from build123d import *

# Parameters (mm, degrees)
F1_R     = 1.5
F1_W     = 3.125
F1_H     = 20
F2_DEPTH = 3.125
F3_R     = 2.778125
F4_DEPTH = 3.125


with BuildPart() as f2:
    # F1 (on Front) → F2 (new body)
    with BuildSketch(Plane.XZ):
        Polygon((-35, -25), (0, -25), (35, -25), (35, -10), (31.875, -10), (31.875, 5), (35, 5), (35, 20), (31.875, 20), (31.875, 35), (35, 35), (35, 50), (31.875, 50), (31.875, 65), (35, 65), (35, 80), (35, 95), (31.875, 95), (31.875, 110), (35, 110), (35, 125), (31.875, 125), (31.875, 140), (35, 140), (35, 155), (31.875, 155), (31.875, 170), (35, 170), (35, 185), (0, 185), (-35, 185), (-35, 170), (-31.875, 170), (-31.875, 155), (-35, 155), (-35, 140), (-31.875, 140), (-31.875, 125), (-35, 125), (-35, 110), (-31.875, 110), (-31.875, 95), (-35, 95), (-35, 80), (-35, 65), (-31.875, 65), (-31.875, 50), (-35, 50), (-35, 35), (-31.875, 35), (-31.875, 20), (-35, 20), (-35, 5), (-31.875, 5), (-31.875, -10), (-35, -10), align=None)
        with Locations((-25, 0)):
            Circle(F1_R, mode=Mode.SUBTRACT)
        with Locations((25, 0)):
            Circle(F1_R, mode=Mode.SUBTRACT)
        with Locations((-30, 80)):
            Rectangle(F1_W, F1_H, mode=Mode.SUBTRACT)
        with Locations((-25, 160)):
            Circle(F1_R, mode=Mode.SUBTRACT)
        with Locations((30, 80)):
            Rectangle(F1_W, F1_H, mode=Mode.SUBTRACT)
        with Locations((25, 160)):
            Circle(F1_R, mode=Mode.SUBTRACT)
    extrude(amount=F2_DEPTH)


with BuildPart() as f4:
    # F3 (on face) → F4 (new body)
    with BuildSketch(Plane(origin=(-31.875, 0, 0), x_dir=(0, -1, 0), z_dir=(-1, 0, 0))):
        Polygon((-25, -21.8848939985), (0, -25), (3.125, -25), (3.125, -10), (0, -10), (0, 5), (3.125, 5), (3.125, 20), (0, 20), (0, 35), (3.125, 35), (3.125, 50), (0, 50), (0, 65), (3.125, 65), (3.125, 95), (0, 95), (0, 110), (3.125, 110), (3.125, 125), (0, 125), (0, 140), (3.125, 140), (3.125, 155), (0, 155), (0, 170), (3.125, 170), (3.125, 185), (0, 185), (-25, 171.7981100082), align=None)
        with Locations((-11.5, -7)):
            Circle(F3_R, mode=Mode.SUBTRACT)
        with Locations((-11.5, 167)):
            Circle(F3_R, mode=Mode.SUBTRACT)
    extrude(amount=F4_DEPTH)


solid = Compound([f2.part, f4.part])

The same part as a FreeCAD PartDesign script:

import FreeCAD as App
import Part
import Sketcher
from FreeCAD import Vector

doc = App.newDocument("Part")
body = doc.addObject("PartDesign::Body", "Body")

sketch1 = body.newObject("Sketcher::SketchObject", "Sketch")
sketch1.AttachmentSupport = (doc.getObject("XZ_Plane"), [""])
sketch1.MapMode = "FlatFace"
sketch1.addGeometry([
    Part.LineSegment(Vector(-35, -25, 0), Vector(35, -25, 0)),
    Part.LineSegment(Vector(35, -25, 0), Vector(35, -10, 0)),
    Part.LineSegment(Vector(35, -10, 0), Vector(31.9, -10, 0)),
    Part.LineSegment(Vector(31.9, -10, 0), Vector(31.9, 5, 0)),
    Part.LineSegment(Vector(31.9, 5, 0), Vector(35, 5, 0)),
    Part.LineSegment(Vector(35, 5, 0), Vector(35, 20, 0)),
    Part.LineSegment(Vector(35, 20, 0), Vector(31.9, 20, 0)),
    Part.LineSegment(Vector(31.9, 20, 0), Vector(31.9, 35, 0)),
    Part.LineSegment(Vector(31.9, 35, 0), Vector(35, 35, 0)),
    Part.LineSegment(Vector(35, 35, 0), Vector(35, 50, 0)),
    Part.LineSegment(Vector(35, 50, 0), Vector(31.9, 50, 0)),
    Part.LineSegment(Vector(31.9, 50, 0), Vector(31.9, 65, 0)),
    Part.LineSegment(Vector(31.9, 65, 0), Vector(35, 65, 0)),
    Part.LineSegment(Vector(35, 65, 0), Vector(35, 95, 0)),
    Part.LineSegment(Vector(35, 95, 0), Vector(31.9, 95, 0)),
    Part.LineSegment(Vector(31.9, 95, 0), Vector(31.9, 110, 0)),
    Part.LineSegment(Vector(31.9, 110, 0), Vector(35, 110, 0)),
    Part.LineSegment(Vector(35, 110, 0), Vector(35, 125, 0)),
    Part.LineSegment(Vector(35, 125, 0), Vector(31.9, 125, 0)),
    Part.LineSegment(Vector(31.9, 125, 0), Vector(31.9, 140, 0)),
    Part.LineSegment(Vector(31.9, 140, 0), Vector(35, 140, 0)),
    Part.LineSegment(Vector(35, 140, 0), Vector(35, 155, 0)),
    Part.LineSegment(Vector(35, 155, 0), Vector(31.9, 155, 0)),
    Part.LineSegment(Vector(31.9, 155, 0), Vector(31.9, 170, 0)),
    Part.LineSegment(Vector(31.9, 170, 0), Vector(35, 170, 0)),
    Part.LineSegment(Vector(35, 170, 0), Vector(35, 185, 0)),
    Part.LineSegment(Vector(35, 185, 0), Vector(-35, 185, 0)),
    Part.LineSegment(Vector(-35, 185, 0), Vector(-35, 170, 0)),
    Part.LineSegment(Vector(-35, 170, 0), Vector(-31.9, 170, 0)),
    Part.LineSegment(Vector(-31.9, 170, 0), Vector(-31.9, 155, 0)),
    Part.LineSegment(Vector(-31.9, 155, 0), Vector(-35, 155, 0)),
    Part.LineSegment(Vector(-35, 155, 0), Vector(-35, 140, 0)),
    Part.LineSegment(Vector(-35, 140, 0), Vector(-31.9, 140, 0)),
    Part.LineSegment(Vector(-31.9, 140, 0), Vector(-31.9, 125, 0)),
    Part.LineSegment(Vector(-31.9, 125, 0), Vector(-35, 125, 0)),
    Part.LineSegment(Vector(-35, 125, 0), Vector(-35, 110, 0)),
    Part.LineSegment(Vector(-35, 110, 0), Vector(-31.9, 110, 0)),
    Part.LineSegment(Vector(-31.9, 110, 0), Vector(-31.9, 95, 0)),
    Part.LineSegment(Vector(-31.9, 95, 0), Vector(-35, 95, 0)),
    Part.LineSegment(Vector(-35, 95, 0), Vector(-35, 65, 0)),
    Part.LineSegment(Vector(-35, 65, 0), Vector(-31.9, 65, 0)),
    Part.LineSegment(Vector(-31.9, 65, 0), Vector(-31.9, 50, 0)),
    Part.LineSegment(Vector(-31.9, 50, 0), Vector(-35, 50, 0)),
    Part.LineSegment(Vector(-35, 50, 0), Vector(-35, 35, 0)),
    Part.LineSegment(Vector(-35, 35, 0), Vector(-31.9, 35, 0)),
    Part.LineSegment(Vector(-31.9, 35, 0), Vector(-31.9, 20, 0)),
    Part.LineSegment(Vector(-31.9, 20, 0), Vector(-35, 20, 0)),
    Part.LineSegment(Vector(-35, 20, 0), Vector(-35, 5, 0)),
    Part.LineSegment(Vector(-35, 5, 0), Vector(-31.9, 5, 0)),
    Part.LineSegment(Vector(-31.9, 5, 0), Vector(-31.9, -10, 0)),
    Part.LineSegment(Vector(-31.9, -10, 0), Vector(-35, -10, 0)),
    Part.LineSegment(Vector(-35, -10, 0), Vector(-35, -25, 0)),
    Part.Circle(Vector(-25, 0, 0), Vector(0, 0, 1), 1.5),
    Part.Circle(Vector(25, 0, 0), Vector(0, 0, 1), 1.5),
    Part.LineSegment(Vector(-28.4, 70, 0), Vector(-31.6, 70, 0)),
    Part.LineSegment(Vector(-31.6, 70, 0), Vector(-31.6, 90, 0)),
    Part.LineSegment(Vector(-31.6, 90, 0), Vector(-28.4, 90, 0)),
    Part.LineSegment(Vector(-28.4, 90, 0), Vector(-28.4, 70, 0)),
    Part.Circle(Vector(-25, 160, 0), Vector(0, 0, 1), 1.5),
    Part.LineSegment(Vector(31.6, 70, 0), Vector(28.4, 70, 0)),
    Part.LineSegment(Vector(28.4, 70, 0), Vector(28.4, 90, 0)),
    Part.LineSegment(Vector(28.4, 90, 0), Vector(31.6, 90, 0)),
    Part.LineSegment(Vector(31.6, 90, 0), Vector(31.6, 70, 0)),
    Part.Circle(Vector(25, 160, 0), Vector(0, 0, 1), 1.5),
], False)
sketch1.addConstraint([
    Sketcher.Constraint("Coincident", 0, 2, 1, 1),
    Sketcher.Constraint("Coincident", 1, 2, 2, 1),
    Sketcher.Constraint("Coincident", 2, 2, 3, 1),
    Sketcher.Constraint("Coincident", 3, 2, 4, 1),
    Sketcher.Constraint("Coincident", 4, 2, 5, 1),
    Sketcher.Constraint("Coincident", 5, 2, 6, 1),
    Sketcher.Constraint("Coincident", 6, 2, 7, 1),
    Sketcher.Constraint("Coincident", 7, 2, 8, 1),
    Sketcher.Constraint("Coincident", 8, 2, 9, 1),
    Sketcher.Constraint("Coincident", 9, 2, 10, 1),
    Sketcher.Constraint("Coincident", 10, 2, 11, 1),
    Sketcher.Constraint("Coincident", 11, 2, 12, 1),
    Sketcher.Constraint("Coincident", 12, 2, 13, 1),
    Sketcher.Constraint("Coincident", 13, 2, 14, 1),
    Sketcher.Constraint("Coincident", 14, 2, 15, 1),
    Sketcher.Constraint("Coincident", 15, 2, 16, 1),
    Sketcher.Constraint("Coincident", 16, 2, 17, 1),
    Sketcher.Constraint("Coincident", 17, 2, 18, 1),
    Sketcher.Constraint("Coincident", 18, 2, 19, 1),
    Sketcher.Constraint("Coincident", 19, 2, 20, 1),
    Sketcher.Constraint("Coincident", 20, 2, 21, 1),
    Sketcher.Constraint("Coincident", 21, 2, 22, 1),
    Sketcher.Constraint("Coincident", 22, 2, 23, 1),
    Sketcher.Constraint("Coincident", 23, 2, 24, 1),
    Sketcher.Constraint("Coincident", 24, 2, 25, 1),
    Sketcher.Constraint("Coincident", 25, 2, 26, 1),
    Sketcher.Constraint("Coincident", 26, 2, 27, 1),
    Sketcher.Constraint("Coincident", 27, 2, 28, 1),
    Sketcher.Constraint("Coincident", 28, 2, 29, 1),
    Sketcher.Constraint("Coincident", 29, 2, 30, 1),
    Sketcher.Constraint("Coincident", 30, 2, 31, 1),
    Sketcher.Constraint("Coincident", 31, 2, 32, 1),
    Sketcher.Constraint("Coincident", 32, 2, 33, 1),
    Sketcher.Constraint("Coincident", 33, 2, 34, 1),
    Sketcher.Constraint("Coincident", 34, 2, 35, 1),
    Sketcher.Constraint("Coincident", 35, 2, 36, 1),
    Sketcher.Constraint("Coincident", 36, 2, 37, 1),
    Sketcher.Constraint("Coincident", 37, 2, 38, 1),
    Sketcher.Constraint("Coincident", 38, 2, 39, 1),
    Sketcher.Constraint("Coincident", 39, 2, 40, 1),
    Sketcher.Constraint("Coincident", 40, 2, 41, 1),
    Sketcher.Constraint("Coincident", 41, 2, 42, 1),
    Sketcher.Constraint("Coincident", 42, 2, 43, 1),
    Sketcher.Constraint("Coincident", 43, 2, 44, 1),
    Sketcher.Constraint("Coincident", 44, 2, 45, 1),
    Sketcher.Constraint("Coincident", 45, 2, 46, 1),
    Sketcher.Constraint("Coincident", 46, 2, 47, 1),
    Sketcher.Constraint("Coincident", 47, 2, 48, 1),
    Sketcher.Constraint("Coincident", 48, 2, 49, 1),
    Sketcher.Constraint("Coincident", 49, 2, 50, 1),
    Sketcher.Constraint("Coincident", 50, 2, 51, 1),
    Sketcher.Constraint("Coincident", 51, 2, 0, 1),
    Sketcher.Constraint("Coincident", 54, 2, 55, 1),
    Sketcher.Constraint("Coincident", 55, 2, 56, 1),
    Sketcher.Constraint("Coincident", 56, 2, 57, 1),
    Sketcher.Constraint("Coincident", 57, 2, 54, 1),
    Sketcher.Constraint("Coincident", 59, 2, 60, 1),
    Sketcher.Constraint("Coincident", 60, 2, 61, 1),
    Sketcher.Constraint("Coincident", 61, 2, 62, 1),
    Sketcher.Constraint("Coincident", 62, 2, 59, 1),
    Sketcher.Constraint("Horizontal", 0),
    Sketcher.Constraint("Vertical", 1),
    Sketcher.Constraint("Horizontal", 2),
    Sketcher.Constraint("Vertical", 3),
    Sketcher.Constraint("Horizontal", 4),
    Sketcher.Constraint("Vertical", 5),
    Sketcher.Constraint("Horizontal", 6),
    Sketcher.Constraint("Vertical", 7),
    Sketcher.Constraint("Horizontal", 8),
    Sketcher.Constraint("Vertical", 9),
    Sketcher.Constraint("Horizontal", 10),
    Sketcher.Constraint("Vertical", 11),
    Sketcher.Constraint("Horizontal", 12),
    Sketcher.Constraint("Vertical", 13),
    Sketcher.Constraint("Horizontal", 14),
    Sketcher.Constraint("Vertical", 15),
    Sketcher.Constraint("Horizontal", 16),
    Sketcher.Constraint("Vertical", 17),
    Sketcher.Constraint("Horizontal", 18),
    Sketcher.Constraint("Vertical", 19),
    Sketcher.Constraint("Horizontal", 20),
    Sketcher.Constraint("Vertical", 21),
    Sketcher.Constraint("Horizontal", 22),
    Sketcher.Constraint("Vertical", 23),
    Sketcher.Constraint("Horizontal", 24),
    Sketcher.Constraint("Vertical", 25),
    Sketcher.Constraint("Horizontal", 26),
    Sketcher.Constraint("Vertical", 27),
    Sketcher.Constraint("Horizontal", 28),
    Sketcher.Constraint("Vertical", 29),
    Sketcher.Constraint("Horizontal", 30),
    Sketcher.Constraint("Vertical", 31),
    Sketcher.Constraint("Horizontal", 32),
    Sketcher.Constraint("Vertical", 33),
    Sketcher.Constraint("Horizontal", 34),
    Sketcher.Constraint("Vertical", 35),
    Sketcher.Constraint("Horizontal", 36),
    Sketcher.Constraint("Vertical", 37),
    Sketcher.Constraint("Horizontal", 38),
    Sketcher.Constraint("Vertical", 39),
    Sketcher.Constraint("Horizontal", 40),
    Sketcher.Constraint("Vertical", 41),
    Sketcher.Constraint("Horizontal", 42),
    Sketcher.Constraint("Vertical", 43),
    Sketcher.Constraint("Horizontal", 44),
    Sketcher.Constraint("Vertical", 45),
    Sketcher.Constraint("Horizontal", 46),
    Sketcher.Constraint("Vertical", 47),
    Sketcher.Constraint("Horizontal", 48),
    Sketcher.Constraint("Vertical", 49),
    Sketcher.Constraint("Horizontal", 50),
    Sketcher.Constraint("Vertical", 51),
    Sketcher.Constraint("Horizontal", 54),
    Sketcher.Constraint("Vertical", 55),
    Sketcher.Constraint("Horizontal", 56),
    Sketcher.Constraint("Vertical", 57),
    Sketcher.Constraint("Horizontal", 59),
    Sketcher.Constraint("Vertical", 60),
    Sketcher.Constraint("Horizontal", 61),
    Sketcher.Constraint("Vertical", 62),
    Sketcher.Constraint("Equal", 52, 53),
    Sketcher.Constraint("Equal", 53, 58),
    Sketcher.Constraint("Equal", 58, 63),
    Sketcher.Constraint("Symmetric", 52, 3, 53, 3, -1, 1),
    Sketcher.Constraint("Symmetric", 58, 3, 63, 3, -2),
    Sketcher.Constraint("Symmetric", 24, 2, 27, 2, -2),
    Sketcher.Constraint("Symmetric", 22, 2, 29, 2, -2),
    Sketcher.Constraint("Symmetric", 20, 2, 31, 2, -2),
    Sketcher.Constraint("Symmetric", 18, 2, 33, 2, -2),
    Sketcher.Constraint("Symmetric", 16, 2, 35, 2, -2),
    Sketcher.Constraint("Symmetric", 14, 2, 37, 2, -2),
    Sketcher.Constraint("Symmetric", 12, 2, 39, 2, -2),
    Sketcher.Constraint("Symmetric", 10, 2, 41, 2, -2),
    Sketcher.Constraint("Symmetric", 8, 2, 43, 2, -2),
    Sketcher.Constraint("Symmetric", 6, 2, 45, 2, -2),
    Sketcher.Constraint("Symmetric", 4, 2, 47, 2, -2),
    Sketcher.Constraint("Symmetric", 2, 2, 49, 2, -2),
    Sketcher.Constraint("Symmetric", 57, 2, 59, 2, -2),
    Sketcher.Constraint("Symmetric", 55, 2, 61, 2, -2),
    Sketcher.Constraint("PointOnObject", 52, 3, -1),
    Sketcher.Constraint("Vertical", 52, 3, 58, 3),
    Sketcher.Constraint("Vertical", 1, 2, 4, 2),
    Sketcher.Constraint("Vertical", 3, 2, 6, 2),
    Sketcher.Constraint("Vertical", 5, 2, 8, 2),
    Sketcher.Constraint("Vertical", 7, 2, 10, 2),
    Sketcher.Constraint("Vertical", 9, 2, 12, 2),
    Sketcher.Constraint("Vertical", 11, 2, 14, 2),
    Sketcher.Constraint("Vertical", 13, 2, 16, 2),
    Sketcher.Constraint("Vertical", 15, 2, 18, 2),
    Sketcher.Constraint("Vertical", 17, 2, 20, 2),
    Sketcher.Constraint("Vertical", 19, 2, 22, 2),
    Sketcher.Constraint("Vertical", 21, 2, 24, 2),
    Sketcher.Constraint("Vertical", 47, 2, 50, 2),
    Sketcher.Constraint("Equal", 50, 54),
    Sketcher.Constraint("Equal", 1, 3),
    Sketcher.Constraint("Equal", 3, 5),
    Sketcher.Constraint("Equal", 5, 7),
    Sketcher.Constraint("Equal", 7, 9),
    Sketcher.Constraint("Equal", 9, 11),
    Sketcher.Constraint("Equal", 11, 15),
    Sketcher.Constraint("Equal", 15, 17),
    Sketcher.Constraint("Equal", 17, 19),
    Sketcher.Constraint("Equal", 19, 21),
    Sketcher.Constraint("Equal", 21, 23),
    Sketcher.Constraint("Equal", 23, 25),
    Sketcher.Constraint("Diameter", 52, 3.0),
    Sketcher.Constraint("DistanceX", 0, 1, 0, 2, 70.0),
    Sketcher.Constraint("DistanceY", 1, 1, 1, 2, 15.0),
    Sketcher.Constraint("DistanceY", 13, 1, 13, 2, 30.0),
    Sketcher.Constraint("DistanceY", 55, 1, 55, 2, 20.0),
    Sketcher.Constraint("DistanceX", 52, 3, -1, 1, 25.0),
    Sketcher.Constraint("DistanceY", -1, 1, 58, 3, 160.0),
    Sketcher.Constraint("DistanceY", 0, 2, -1, 1, 25.0),
    Sketcher.Constraint("DistanceY", -1, 1, 54, 2, 70.0),
    Sketcher.Constraint("DistanceX", 2, 2, 2, 1, 3.125),
    Sketcher.Constraint("DistanceX", 54, 2, -1, 1, 31.5625),
])
pad1 = body.newObject("PartDesign::Pad", "Pad")
pad1.Profile = sketch1
pad1.Length = 3.125
body2 = doc.addObject("PartDesign::Body", "Body001")

sketch2 = body2.newObject("Sketcher::SketchObject", "Sketch001")
sketch2.AttachmentSupport = (doc.getObject("YZ_Plane001"), [""])
sketch2.MapMode = "FlatFace"
sketch2.AttachmentOffset = App.Placement(Vector(0, 0, -31.875), App.Rotation())
sketch2.addGeometry([
    Part.LineSegment(Vector(25, -21.9, 0), Vector(0, -25, 0)),
    Part.LineSegment(Vector(0, -25, 0), Vector(-3.1, -25, 0)),
    Part.LineSegment(Vector(-3.1, -25, 0), Vector(-3.1, -10, 0)),
    Part.LineSegment(Vector(-3.1, -10, 0), Vector(0, -10, 0)),
    Part.LineSegment(Vector(0, -10, 0), Vector(0, 5, 0)),
    Part.LineSegment(Vector(0, 5, 0), Vector(-3.1, 5, 0)),
    Part.LineSegment(Vector(-3.1, 5, 0), Vector(-3.1, 20, 0)),
    Part.LineSegment(Vector(-3.1, 20, 0), Vector(0, 20, 0)),
    Part.LineSegment(Vector(0, 20, 0), Vector(0, 35, 0)),
    Part.LineSegment(Vector(0, 35, 0), Vector(-3.1, 35, 0)),
    Part.LineSegment(Vector(-3.1, 35, 0), Vector(-3.1, 50, 0)),
    Part.LineSegment(Vector(-3.1, 50, 0), Vector(0, 50, 0)),
    Part.LineSegment(Vector(0, 50, 0), Vector(0, 65, 0)),
    Part.LineSegment(Vector(0, 65, 0), Vector(-3.1, 65, 0)),
    Part.LineSegment(Vector(-3.1, 65, 0), Vector(-3.1, 95, 0)),
    Part.LineSegment(Vector(-3.1, 95, 0), Vector(0, 95, 0)),
    Part.LineSegment(Vector(0, 95, 0), Vector(0, 110, 0)),
    Part.LineSegment(Vector(0, 110, 0), Vector(-3.1, 110, 0)),
    Part.LineSegment(Vector(-3.1, 110, 0), Vector(-3.1, 125, 0)),
    Part.LineSegment(Vector(-3.1, 125, 0), Vector(0, 125, 0)),
    Part.LineSegment(Vector(0, 125, 0), Vector(0, 140, 0)),
    Part.LineSegment(Vector(0, 140, 0), Vector(-3.1, 140, 0)),
    Part.LineSegment(Vector(-3.1, 140, 0), Vector(-3.1, 155, 0)),
    Part.LineSegment(Vector(-3.1, 155, 0), Vector(0, 155, 0)),
    Part.LineSegment(Vector(0, 155, 0), Vector(0, 170, 0)),
    Part.LineSegment(Vector(0, 170, 0), Vector(-3.1, 170, 0)),
    Part.LineSegment(Vector(-3.1, 170, 0), Vector(-3.1, 185, 0)),
    Part.LineSegment(Vector(-3.1, 185, 0), Vector(0, 185, 0)),
    Part.LineSegment(Vector(0, 185, 0), Vector(25, 171.8, 0)),
    Part.LineSegment(Vector(25, 171.8, 0), Vector(25, -21.9, 0)),
    Part.Circle(Vector(11.5, -7, 0), Vector(0, 0, 1), 2.8),
    Part.Circle(Vector(11.5, 167, 0), Vector(0, 0, 1), 2.8),
], False)
sketch2.addConstraint([
    Sketcher.Constraint("Coincident", 0, 2, 1, 1),
    Sketcher.Constraint("Coincident", 1, 2, 2, 1),
    Sketcher.Constraint("Coincident", 2, 2, 3, 1),
    Sketcher.Constraint("Coincident", 3, 2, 4, 1),
    Sketcher.Constraint("Coincident", 4, 2, 5, 1),
    Sketcher.Constraint("Coincident", 5, 2, 6, 1),
    Sketcher.Constraint("Coincident", 6, 2, 7, 1),
    Sketcher.Constraint("Coincident", 7, 2, 8, 1),
    Sketcher.Constraint("Coincident", 8, 2, 9, 1),
    Sketcher.Constraint("Coincident", 9, 2, 10, 1),
    Sketcher.Constraint("Coincident", 10, 2, 11, 1),
    Sketcher.Constraint("Coincident", 11, 2, 12, 1),
    Sketcher.Constraint("Coincident", 12, 2, 13, 1),
    Sketcher.Constraint("Coincident", 13, 2, 14, 1),
    Sketcher.Constraint("Coincident", 14, 2, 15, 1),
    Sketcher.Constraint("Coincident", 15, 2, 16, 1),
    Sketcher.Constraint("Coincident", 16, 2, 17, 1),
    Sketcher.Constraint("Coincident", 17, 2, 18, 1),
    Sketcher.Constraint("Coincident", 18, 2, 19, 1),
    Sketcher.Constraint("Coincident", 19, 2, 20, 1),
    Sketcher.Constraint("Coincident", 20, 2, 21, 1),
    Sketcher.Constraint("Coincident", 21, 2, 22, 1),
    Sketcher.Constraint("Coincident", 22, 2, 23, 1),
    Sketcher.Constraint("Coincident", 23, 2, 24, 1),
    Sketcher.Constraint("Coincident", 24, 2, 25, 1),
    Sketcher.Constraint("Coincident", 25, 2, 26, 1),
    Sketcher.Constraint("Coincident", 26, 2, 27, 1),
    Sketcher.Constraint("Coincident", 27, 2, 28, 1),
    Sketcher.Constraint("Coincident", 28, 2, 29, 1),
    Sketcher.Constraint("Coincident", 29, 2, 0, 1),
    Sketcher.Constraint("Horizontal", 1),
    Sketcher.Constraint("Vertical", 2),
    Sketcher.Constraint("Horizontal", 3),
    Sketcher.Constraint("Vertical", 4),
    Sketcher.Constraint("Horizontal", 5),
    Sketcher.Constraint("Vertical", 6),
    Sketcher.Constraint("Horizontal", 7),
    Sketcher.Constraint("Vertical", 8),
    Sketcher.Constraint("Horizontal", 9),
    Sketcher.Constraint("Vertical", 10),
    Sketcher.Constraint("Horizontal", 11),
    Sketcher.Constraint("Vertical", 12),
    Sketcher.Constraint("Horizontal", 13),
    Sketcher.Constraint("Vertical", 14),
    Sketcher.Constraint("Horizontal", 15),
    Sketcher.Constraint("Vertical", 16),
    Sketcher.Constraint("Horizontal", 17),
    Sketcher.Constraint("Vertical", 18),
    Sketcher.Constraint("Horizontal", 19),
    Sketcher.Constraint("Vertical", 20),
    Sketcher.Constraint("Horizontal", 21),
    Sketcher.Constraint("Vertical", 22),
    Sketcher.Constraint("Horizontal", 23),
    Sketcher.Constraint("Vertical", 24),
    Sketcher.Constraint("Horizontal", 25),
    Sketcher.Constraint("Vertical", 26),
    Sketcher.Constraint("Horizontal", 27),
    Sketcher.Constraint("Vertical", 29),
    Sketcher.Constraint("Equal", 30, 31),
    Sketcher.Constraint("PointOnObject", 0, 2, -2),
    Sketcher.Constraint("PointOnObject", 3, 2, -2),
    Sketcher.Constraint("PointOnObject", 7, 2, -2),
    Sketcher.Constraint("PointOnObject", 11, 2, -2),
    Sketcher.Constraint("PointOnObject", 15, 2, -2),
    Sketcher.Constraint("PointOnObject", 19, 2, -2),
    Sketcher.Constraint("PointOnObject", 23, 2, -2),
    Sketcher.Constraint("PointOnObject", 27, 2, -2),
    Sketcher.Constraint("Vertical", 30, 3, 31, 3),
    Sketcher.Constraint("Vertical", 2, 2, 5, 2),
    Sketcher.Constraint("Vertical", 6, 2, 9, 2),
    Sketcher.Constraint("Vertical", 10, 2, 13, 2),
    Sketcher.Constraint("Vertical", 14, 2, 17, 2),
    Sketcher.Constraint("Vertical", 18, 2, 21, 2),
    Sketcher.Constraint("Vertical", 22, 2, 25, 2),
    Sketcher.Constraint("Equal", 2, 4),
    Sketcher.Constraint("Equal", 4, 6),
    Sketcher.Constraint("Equal", 6, 8),
    Sketcher.Constraint("Equal", 8, 10),
    Sketcher.Constraint("Equal", 10, 12),
    Sketcher.Constraint("Equal", 12, 16),
    Sketcher.Constraint("Equal", 16, 18),
    Sketcher.Constraint("Equal", 18, 20),
    Sketcher.Constraint("Equal", 20, 22),
    Sketcher.Constraint("Equal", 22, 24),
    Sketcher.Constraint("Equal", 24, 26),
    Sketcher.Constraint("DistanceY", 2, 1, 2, 2, 15.0),
    Sketcher.Constraint("DistanceY", 14, 1, 14, 2, 30.0),
    Sketcher.Constraint("DistanceY", 30, 3, -1, 1, 7.0),
    Sketcher.Constraint("DistanceY", -1, 1, 31, 3, 167.0),
    Sketcher.Constraint("DistanceY", 0, 2, -1, 1, 25.0),
    Sketcher.Constraint("DistanceX", -1, 1, 28, 2, 25.0),
    Sketcher.Constraint("DistanceX", -1, 1, 30, 3, 11.5),
    Sketcher.Constraint("Diameter", 30, 5.55625),
    Sketcher.Constraint("DistanceX", 1, 2, 1, 1, 3.125),
    Sketcher.Constraint("Distance", 0, 25.19333),
    Sketcher.Constraint("DistanceY", 29, 2, 29, 1, 193.683004),
])
pad2 = body2.newObject("PartDesign::Pad", "Pad001")
pad2.Profile = sketch2
pad2.Length = 3.125
pad2.Reversed = True

doc.recompute()
